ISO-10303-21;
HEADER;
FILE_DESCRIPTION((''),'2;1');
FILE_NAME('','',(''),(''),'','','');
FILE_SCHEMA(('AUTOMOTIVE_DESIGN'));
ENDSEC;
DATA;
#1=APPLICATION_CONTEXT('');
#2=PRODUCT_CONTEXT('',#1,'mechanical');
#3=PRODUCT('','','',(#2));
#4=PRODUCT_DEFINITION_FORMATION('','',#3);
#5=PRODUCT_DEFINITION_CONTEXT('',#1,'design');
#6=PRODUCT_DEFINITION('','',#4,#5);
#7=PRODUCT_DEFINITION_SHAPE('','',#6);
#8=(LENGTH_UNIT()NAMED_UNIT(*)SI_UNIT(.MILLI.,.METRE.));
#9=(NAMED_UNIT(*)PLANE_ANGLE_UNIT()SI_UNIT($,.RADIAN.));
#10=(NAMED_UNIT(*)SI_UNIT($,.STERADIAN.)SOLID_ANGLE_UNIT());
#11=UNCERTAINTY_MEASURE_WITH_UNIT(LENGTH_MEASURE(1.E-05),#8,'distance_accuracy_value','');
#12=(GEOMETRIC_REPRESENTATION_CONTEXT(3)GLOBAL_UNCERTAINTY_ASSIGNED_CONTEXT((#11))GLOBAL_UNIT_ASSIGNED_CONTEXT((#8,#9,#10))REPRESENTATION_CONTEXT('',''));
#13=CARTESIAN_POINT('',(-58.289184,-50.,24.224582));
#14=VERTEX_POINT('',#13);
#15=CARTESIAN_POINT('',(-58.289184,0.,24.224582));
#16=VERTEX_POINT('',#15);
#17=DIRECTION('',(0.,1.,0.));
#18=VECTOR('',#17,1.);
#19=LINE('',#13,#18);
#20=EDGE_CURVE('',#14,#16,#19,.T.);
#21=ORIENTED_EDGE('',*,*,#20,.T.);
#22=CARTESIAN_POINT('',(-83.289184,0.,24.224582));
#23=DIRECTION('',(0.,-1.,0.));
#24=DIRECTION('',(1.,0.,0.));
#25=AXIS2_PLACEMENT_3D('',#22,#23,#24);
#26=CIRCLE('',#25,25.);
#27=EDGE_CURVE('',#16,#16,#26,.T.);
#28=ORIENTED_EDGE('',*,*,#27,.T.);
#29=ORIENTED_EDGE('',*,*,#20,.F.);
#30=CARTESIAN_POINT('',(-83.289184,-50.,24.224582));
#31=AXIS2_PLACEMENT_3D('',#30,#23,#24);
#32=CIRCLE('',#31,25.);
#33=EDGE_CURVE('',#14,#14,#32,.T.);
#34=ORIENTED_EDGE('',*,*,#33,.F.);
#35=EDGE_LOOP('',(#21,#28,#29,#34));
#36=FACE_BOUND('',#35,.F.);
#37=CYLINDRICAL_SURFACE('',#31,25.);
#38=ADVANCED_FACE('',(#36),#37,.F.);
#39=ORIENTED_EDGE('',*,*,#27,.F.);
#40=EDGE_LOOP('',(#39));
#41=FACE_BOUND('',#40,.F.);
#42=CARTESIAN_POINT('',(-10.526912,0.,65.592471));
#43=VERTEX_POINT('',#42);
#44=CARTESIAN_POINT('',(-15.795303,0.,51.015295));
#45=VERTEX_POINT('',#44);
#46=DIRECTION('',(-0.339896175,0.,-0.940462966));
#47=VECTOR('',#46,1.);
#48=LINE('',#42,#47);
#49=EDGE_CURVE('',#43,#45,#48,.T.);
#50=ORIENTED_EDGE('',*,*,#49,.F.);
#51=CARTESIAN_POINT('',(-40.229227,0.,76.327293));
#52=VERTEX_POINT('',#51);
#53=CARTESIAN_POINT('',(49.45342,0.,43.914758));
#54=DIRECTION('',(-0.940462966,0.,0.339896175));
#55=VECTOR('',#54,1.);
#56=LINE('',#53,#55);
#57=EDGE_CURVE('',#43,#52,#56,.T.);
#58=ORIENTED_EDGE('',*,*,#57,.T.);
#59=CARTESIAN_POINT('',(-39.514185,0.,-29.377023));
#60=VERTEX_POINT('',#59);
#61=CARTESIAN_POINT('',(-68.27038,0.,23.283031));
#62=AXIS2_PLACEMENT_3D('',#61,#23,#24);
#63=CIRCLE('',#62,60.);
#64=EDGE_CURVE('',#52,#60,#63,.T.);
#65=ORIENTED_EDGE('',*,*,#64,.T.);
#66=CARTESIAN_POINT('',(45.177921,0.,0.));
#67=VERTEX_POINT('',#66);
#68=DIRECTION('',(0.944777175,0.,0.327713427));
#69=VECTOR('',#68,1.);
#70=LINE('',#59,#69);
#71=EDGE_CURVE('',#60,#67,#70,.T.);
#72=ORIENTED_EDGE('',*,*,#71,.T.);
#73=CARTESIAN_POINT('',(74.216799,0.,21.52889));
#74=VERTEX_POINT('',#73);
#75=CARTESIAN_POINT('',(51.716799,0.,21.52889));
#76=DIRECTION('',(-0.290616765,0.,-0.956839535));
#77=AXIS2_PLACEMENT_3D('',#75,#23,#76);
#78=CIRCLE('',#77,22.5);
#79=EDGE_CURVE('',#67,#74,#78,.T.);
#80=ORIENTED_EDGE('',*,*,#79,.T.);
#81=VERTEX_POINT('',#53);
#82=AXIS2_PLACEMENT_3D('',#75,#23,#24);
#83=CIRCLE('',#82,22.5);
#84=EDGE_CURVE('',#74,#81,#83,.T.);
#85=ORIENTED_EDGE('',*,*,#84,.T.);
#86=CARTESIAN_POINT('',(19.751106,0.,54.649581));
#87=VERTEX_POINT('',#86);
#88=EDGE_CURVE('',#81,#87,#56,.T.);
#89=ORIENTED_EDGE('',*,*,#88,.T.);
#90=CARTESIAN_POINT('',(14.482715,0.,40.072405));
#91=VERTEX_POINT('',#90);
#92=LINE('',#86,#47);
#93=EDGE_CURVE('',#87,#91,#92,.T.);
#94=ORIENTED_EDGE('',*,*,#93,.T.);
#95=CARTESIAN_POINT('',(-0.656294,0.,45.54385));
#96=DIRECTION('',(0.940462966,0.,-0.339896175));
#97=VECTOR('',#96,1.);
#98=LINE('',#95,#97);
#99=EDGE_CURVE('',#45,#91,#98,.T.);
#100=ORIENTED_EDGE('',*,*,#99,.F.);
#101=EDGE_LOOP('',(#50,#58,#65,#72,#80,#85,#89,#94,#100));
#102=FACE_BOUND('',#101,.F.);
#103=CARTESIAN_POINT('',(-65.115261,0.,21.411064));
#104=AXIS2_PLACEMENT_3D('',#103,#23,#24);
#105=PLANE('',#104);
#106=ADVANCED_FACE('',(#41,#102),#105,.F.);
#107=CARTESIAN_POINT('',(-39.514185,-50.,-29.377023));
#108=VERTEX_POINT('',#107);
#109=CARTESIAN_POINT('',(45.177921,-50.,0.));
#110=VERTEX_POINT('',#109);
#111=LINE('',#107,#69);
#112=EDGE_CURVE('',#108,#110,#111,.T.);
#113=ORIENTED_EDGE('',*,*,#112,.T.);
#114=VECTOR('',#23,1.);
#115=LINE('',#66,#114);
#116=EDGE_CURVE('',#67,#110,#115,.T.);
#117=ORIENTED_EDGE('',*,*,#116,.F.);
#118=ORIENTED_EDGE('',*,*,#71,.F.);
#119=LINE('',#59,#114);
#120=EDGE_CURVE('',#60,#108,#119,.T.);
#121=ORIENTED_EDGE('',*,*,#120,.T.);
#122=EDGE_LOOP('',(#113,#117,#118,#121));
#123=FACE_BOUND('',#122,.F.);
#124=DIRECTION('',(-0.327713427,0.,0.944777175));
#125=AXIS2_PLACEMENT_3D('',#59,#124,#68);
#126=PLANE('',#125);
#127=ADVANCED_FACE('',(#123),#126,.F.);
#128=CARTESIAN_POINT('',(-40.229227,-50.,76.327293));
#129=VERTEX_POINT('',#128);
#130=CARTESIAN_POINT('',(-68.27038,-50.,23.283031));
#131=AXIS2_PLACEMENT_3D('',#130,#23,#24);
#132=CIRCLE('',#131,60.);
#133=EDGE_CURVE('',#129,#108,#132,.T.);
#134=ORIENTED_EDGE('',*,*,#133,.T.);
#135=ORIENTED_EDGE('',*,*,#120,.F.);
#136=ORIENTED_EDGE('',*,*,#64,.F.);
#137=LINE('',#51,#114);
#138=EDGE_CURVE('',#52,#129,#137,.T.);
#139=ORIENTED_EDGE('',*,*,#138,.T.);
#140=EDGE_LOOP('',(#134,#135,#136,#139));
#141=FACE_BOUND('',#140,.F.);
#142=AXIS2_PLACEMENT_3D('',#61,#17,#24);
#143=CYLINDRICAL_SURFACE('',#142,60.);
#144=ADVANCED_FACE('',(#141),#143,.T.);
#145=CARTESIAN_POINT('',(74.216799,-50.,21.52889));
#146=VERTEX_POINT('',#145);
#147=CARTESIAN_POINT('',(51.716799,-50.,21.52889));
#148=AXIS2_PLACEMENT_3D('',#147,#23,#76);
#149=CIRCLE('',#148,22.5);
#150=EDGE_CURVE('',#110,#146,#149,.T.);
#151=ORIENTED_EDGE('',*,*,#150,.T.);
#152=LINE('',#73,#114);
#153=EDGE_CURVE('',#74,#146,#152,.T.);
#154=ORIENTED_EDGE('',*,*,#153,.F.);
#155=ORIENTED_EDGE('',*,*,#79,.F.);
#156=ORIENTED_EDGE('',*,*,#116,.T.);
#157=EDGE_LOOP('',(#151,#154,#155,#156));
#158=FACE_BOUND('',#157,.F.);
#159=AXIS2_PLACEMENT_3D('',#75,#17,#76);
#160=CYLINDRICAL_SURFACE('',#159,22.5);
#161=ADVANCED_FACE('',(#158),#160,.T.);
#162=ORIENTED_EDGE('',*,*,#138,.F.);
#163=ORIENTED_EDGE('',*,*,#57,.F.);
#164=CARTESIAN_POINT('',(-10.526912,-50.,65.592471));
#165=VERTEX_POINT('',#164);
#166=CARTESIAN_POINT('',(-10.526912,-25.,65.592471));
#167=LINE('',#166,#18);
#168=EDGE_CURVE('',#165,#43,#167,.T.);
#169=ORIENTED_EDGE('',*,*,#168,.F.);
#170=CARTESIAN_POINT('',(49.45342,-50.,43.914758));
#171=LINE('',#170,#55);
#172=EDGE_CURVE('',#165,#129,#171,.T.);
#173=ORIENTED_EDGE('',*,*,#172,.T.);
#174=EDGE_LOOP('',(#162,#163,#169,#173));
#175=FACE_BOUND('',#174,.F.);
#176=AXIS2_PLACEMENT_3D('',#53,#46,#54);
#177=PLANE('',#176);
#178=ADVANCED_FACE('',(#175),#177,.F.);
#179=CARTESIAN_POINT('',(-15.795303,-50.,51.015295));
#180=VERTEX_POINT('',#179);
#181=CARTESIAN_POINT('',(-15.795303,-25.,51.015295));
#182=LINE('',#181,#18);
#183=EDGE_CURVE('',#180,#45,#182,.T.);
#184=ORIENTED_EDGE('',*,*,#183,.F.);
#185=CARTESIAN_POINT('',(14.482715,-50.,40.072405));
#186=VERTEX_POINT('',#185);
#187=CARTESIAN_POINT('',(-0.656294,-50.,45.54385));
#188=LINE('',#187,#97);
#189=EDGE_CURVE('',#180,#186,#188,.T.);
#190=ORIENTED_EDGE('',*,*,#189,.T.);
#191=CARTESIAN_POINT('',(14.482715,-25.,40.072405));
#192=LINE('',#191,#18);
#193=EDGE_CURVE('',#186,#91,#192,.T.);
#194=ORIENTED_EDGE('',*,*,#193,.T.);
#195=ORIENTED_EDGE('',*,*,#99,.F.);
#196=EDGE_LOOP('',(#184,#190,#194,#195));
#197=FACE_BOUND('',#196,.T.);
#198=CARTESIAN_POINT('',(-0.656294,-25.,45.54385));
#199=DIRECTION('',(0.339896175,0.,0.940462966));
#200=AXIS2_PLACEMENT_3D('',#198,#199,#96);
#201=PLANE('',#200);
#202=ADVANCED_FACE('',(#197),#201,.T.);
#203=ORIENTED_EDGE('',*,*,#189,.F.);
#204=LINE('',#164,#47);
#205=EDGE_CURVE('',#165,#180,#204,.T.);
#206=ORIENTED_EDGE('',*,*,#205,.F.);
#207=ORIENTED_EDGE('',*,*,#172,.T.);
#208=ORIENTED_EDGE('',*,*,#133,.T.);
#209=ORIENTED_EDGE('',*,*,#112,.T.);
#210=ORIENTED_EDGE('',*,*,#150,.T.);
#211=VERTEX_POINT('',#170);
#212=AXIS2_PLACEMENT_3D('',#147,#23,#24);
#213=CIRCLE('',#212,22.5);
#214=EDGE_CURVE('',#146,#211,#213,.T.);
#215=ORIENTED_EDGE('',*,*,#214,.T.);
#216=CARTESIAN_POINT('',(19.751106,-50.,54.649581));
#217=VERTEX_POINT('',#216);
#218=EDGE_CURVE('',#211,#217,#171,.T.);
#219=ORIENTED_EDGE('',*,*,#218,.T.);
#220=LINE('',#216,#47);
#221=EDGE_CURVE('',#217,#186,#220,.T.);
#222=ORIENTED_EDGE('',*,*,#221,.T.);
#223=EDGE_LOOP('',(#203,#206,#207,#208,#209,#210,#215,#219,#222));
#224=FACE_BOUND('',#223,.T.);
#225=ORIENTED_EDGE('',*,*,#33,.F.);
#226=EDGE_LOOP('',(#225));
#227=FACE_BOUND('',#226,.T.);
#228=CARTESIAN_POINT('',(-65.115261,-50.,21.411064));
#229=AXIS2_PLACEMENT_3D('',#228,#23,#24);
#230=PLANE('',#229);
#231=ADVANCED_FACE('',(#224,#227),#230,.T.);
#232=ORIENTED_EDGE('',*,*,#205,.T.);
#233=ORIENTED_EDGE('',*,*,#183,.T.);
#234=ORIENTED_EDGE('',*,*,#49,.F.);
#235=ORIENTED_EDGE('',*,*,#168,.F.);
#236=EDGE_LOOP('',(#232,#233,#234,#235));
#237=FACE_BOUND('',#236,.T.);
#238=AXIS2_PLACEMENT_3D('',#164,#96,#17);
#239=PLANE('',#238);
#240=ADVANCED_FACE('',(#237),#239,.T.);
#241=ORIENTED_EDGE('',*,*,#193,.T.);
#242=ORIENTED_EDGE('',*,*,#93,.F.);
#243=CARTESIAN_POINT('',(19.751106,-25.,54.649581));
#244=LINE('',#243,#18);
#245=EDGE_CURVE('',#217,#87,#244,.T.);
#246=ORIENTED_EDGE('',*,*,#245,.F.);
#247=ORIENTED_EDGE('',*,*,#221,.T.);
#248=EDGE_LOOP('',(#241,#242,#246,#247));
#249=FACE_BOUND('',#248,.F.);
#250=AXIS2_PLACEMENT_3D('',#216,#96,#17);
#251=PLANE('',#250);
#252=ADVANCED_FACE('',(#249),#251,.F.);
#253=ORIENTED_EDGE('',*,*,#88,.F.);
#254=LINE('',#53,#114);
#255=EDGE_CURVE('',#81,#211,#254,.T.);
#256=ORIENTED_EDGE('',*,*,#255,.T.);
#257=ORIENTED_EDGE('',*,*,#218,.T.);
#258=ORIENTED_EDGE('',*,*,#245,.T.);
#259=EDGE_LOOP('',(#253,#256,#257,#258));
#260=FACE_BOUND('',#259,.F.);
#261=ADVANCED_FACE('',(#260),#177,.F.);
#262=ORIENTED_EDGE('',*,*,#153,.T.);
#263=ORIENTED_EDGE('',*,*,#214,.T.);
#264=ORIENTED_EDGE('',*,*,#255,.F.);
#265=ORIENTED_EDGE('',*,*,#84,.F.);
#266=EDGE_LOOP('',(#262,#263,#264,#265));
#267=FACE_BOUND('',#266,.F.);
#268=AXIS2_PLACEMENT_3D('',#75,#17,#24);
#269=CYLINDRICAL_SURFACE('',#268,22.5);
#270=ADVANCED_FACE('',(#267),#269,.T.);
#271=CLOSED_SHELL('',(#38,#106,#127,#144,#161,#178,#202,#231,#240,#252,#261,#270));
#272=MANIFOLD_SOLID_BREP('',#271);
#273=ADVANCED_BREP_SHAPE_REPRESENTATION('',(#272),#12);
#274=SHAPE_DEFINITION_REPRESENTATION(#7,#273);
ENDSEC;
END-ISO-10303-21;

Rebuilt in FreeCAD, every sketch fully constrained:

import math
import FreeCAD as App
import Part
import Sketcher
Q = App.Units.Quantity

doc = App.newDocument("Part")
body = doc.addObject("PartDesign::Body", "Body")

# Sketch on XZ plane
sketch1 = body.newObject("Sketcher::SketchObject", "Sketch")
sketch1.AttachmentSupport = (doc.getObject("XZ_Plane"), [""])
sketch1.MapMode = "FlatFace"
sketch1.addGeometry([
    Part.ArcOfCircle(Part.Circle(App.Vector(-68, 23, 0), App.Vector(0, 0, 1), 60), math.radians(62), math.radians(299)),  # 0
    Part.LineSegment(App.Vector(-40, -29, 0), App.Vector(45, 0, 0)),  # 1
    Part.ArcOfCircle(Part.Circle(App.Vector(52, 22, 0), App.Vector(0, 0, 1), 22), math.radians(-107), math.radians(0)),  # 2
    Part.ArcOfCircle(Part.Circle(App.Vector(52, 22, 0), App.Vector(0, 0, 1), 22), math.radians(0), math.radians(96)),  # 3
    Part.LineSegment(App.Vector(49, 44, 0), App.Vector(-40, 76, 0)),  # 4
], False)
sketch1.addConstraint([
    Sketcher.Constraint("Coincident", 0, 2, 1, 1),
    Sketcher.Constraint("Coincident", 1, 2, 2, 1),
    Sketcher.Constraint("Tangent", 2, 2, 3, 1),
    Sketcher.Constraint("Coincident", 3, 2, 4, 1),
    Sketcher.Constraint("Coincident", 4, 2, 0, 1),
    Sketcher.Constraint("Equal", 2, 3),
    Sketcher.Constraint("PointOnObject", 1, 2, -1),
    Sketcher.Constraint("Horizontal", 3, 3, 2, 2),
    Sketcher.Constraint("Radius", 0, Q("60 mm")),
    Sketcher.Constraint("Radius", 2, Q("22.5 mm")),
    Sketcher.Constraint("DistanceX", -1, 1, 2, 3, Q("51.716799 mm")),
    Sketcher.Constraint("DistanceX", 0, 3, 1, 2, Q("113.448301 mm")),
    Sketcher.Constraint("DistanceX", 1, 2, 3, 2, Q("4.275499 mm")),
    Sketcher.Constraint("DistanceX", 0, 3, -1, 1, Q("68.27038 mm")),
    Sketcher.Constraint("DistanceY", -1, 1, 0, 3, Q("23.283031 mm")),
    Sketcher.Constraint("DistanceY", 0, 2, 3, 2, Q("73.291781 mm")),
    Sketcher.Constraint("Distance", 4, Q("95.360105 mm")),
])
pad1 = body.newObject("PartDesign::Pad", "Pad")
pad1.Profile = sketch1
pad1.Length = 50

# Sketch on an angled plane
sketch2 = body.newObject("Sketcher::SketchObject", "Sketch001")
sketch2.Placement = App.Placement(App.Vector(19.751106, 0, 54.649581), App.Rotation(App.Vector(0.940462966, 0, -0.339896175), App.Vector(0, 1, 0), App.Vector(0.339896175, 0, 0.940462966), "ZXY"))
sketch2.addGeometry([
    Part.LineSegment(App.Vector(-32, 0, 0), App.Vector(-32, -50, 0)),
    Part.LineSegment(App.Vector(-32, -50, 0), App.Vector(0, -50, 0)),
    Part.LineSegment(App.Vector(0, -50, 0), App.Vector(0, 0, 0)),
    Part.LineSegment(App.Vector(0, 0, 0), App.Vector(-32, 0, 0)),
], False)
sketch2.addConstraint([
    Sketcher.Constraint("Coincident", 0, 2, 1, 1),
    Sketcher.Constraint("Coincident", 1, 2, 2, 1),
    Sketcher.Constraint("Coincident", 2, 2, 3, 1),
    Sketcher.Constraint("Coincident", 3, 2, 0, 1),
    Sketcher.Constraint("Vertical", 0),
    Sketcher.Constraint("Horizontal", 1),
    Sketcher.Constraint("Vertical", 2),
    Sketcher.Constraint("Horizontal", 3),
    Sketcher.Constraint("Coincident", 2, 2, -1, 1),
    Sketcher.Constraint("DistanceY", 0, 2, 0, 1, Q("50 mm")),
    Sketcher.Constraint("DistanceX", 1, 1, 1, 2, Q("32.194801 mm")),
])
pocket1 = body.newObject("PartDesign::Pocket", "Pocket")
pocket1.Profile = sketch2
pocket1.Length = 15.5

# Sketch on XZ plane
sketch3 = body.newObject("Sketcher::SketchObject", "Sketch002")
sketch3.AttachmentSupport = (doc.getObject("XZ_Plane"), [""])
sketch3.MapMode = "FlatFace"
sketch3.AttachmentOffset = App.Placement(App.Vector(0, 0, 50), App.Rotation())
sketch3.addGeometry(Part.Circle(App.Vector(-83, 24, 0), App.Vector(0, 0, 1), 25), False)
sketch3.addConstraint([
    Sketcher.Constraint("Diameter", 0, Q("50 mm")),
    Sketcher.Constraint("DistanceY", -1, 1, 0, 3, Q("24.224582 mm")),
    Sketcher.Constraint("DistanceX", 0, 3, -1, 1, Q("83.289184 mm")),
])
pocket2 = body.newObject("PartDesign::Pocket", "Pocket001")
pocket2.Profile = sketch3
pocket2.Type = "ThroughAll"

doc.recompute()
